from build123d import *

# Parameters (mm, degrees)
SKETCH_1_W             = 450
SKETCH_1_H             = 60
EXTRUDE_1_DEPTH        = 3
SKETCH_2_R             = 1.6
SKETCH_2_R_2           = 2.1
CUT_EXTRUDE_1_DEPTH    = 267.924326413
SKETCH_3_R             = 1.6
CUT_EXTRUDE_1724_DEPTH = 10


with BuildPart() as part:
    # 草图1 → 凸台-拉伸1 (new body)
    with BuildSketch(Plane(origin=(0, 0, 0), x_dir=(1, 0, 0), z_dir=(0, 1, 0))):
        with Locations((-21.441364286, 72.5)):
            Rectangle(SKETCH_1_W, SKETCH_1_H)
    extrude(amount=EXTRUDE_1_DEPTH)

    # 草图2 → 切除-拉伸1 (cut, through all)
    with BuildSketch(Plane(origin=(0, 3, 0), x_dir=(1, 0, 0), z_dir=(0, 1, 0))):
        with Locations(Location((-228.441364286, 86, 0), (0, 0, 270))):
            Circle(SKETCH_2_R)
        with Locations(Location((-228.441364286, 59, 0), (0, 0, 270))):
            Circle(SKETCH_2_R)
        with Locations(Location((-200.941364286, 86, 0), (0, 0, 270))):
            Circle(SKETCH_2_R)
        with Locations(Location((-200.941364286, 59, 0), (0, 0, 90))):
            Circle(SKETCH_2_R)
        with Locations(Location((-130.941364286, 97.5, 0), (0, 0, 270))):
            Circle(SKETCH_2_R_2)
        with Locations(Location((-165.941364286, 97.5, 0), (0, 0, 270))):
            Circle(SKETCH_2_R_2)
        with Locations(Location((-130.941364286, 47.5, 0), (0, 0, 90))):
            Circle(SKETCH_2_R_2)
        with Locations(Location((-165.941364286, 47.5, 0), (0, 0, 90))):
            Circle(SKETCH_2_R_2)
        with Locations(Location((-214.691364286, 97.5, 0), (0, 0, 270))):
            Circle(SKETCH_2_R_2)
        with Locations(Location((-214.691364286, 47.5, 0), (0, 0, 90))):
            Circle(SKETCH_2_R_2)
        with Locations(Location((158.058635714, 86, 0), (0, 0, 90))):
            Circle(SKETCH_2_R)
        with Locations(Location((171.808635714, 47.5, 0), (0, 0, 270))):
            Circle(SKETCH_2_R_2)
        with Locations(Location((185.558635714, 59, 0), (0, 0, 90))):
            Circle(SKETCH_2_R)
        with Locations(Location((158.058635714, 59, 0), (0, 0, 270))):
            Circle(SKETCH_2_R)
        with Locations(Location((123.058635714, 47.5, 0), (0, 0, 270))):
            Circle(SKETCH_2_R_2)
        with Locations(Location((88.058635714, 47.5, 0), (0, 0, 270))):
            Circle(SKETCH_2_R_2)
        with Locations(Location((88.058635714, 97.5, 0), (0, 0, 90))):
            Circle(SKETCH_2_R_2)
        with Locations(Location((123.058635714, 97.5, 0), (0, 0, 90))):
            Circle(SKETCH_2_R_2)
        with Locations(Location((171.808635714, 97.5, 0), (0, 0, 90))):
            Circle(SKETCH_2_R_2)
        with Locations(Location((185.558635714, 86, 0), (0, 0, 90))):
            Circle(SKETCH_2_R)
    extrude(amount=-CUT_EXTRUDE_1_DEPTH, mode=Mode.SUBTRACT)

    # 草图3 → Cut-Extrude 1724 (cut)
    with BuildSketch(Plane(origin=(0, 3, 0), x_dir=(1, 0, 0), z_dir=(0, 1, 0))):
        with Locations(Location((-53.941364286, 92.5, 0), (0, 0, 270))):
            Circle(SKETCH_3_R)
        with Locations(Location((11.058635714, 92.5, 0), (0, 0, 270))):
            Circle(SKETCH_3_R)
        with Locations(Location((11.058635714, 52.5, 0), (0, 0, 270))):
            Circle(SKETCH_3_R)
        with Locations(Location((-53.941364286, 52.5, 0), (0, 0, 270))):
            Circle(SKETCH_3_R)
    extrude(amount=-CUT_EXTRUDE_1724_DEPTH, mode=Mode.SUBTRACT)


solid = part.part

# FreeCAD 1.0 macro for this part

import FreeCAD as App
import Part
import Sketcher


def add_polygon(sketch, points):
    """Adds a closed chain of lines whose ends are joined by coincident constraints."""
    first, n = sketch.GeometryCount, len(points)
    for a, b in zip(points, points[1:] + points[:1]):
        sketch.addGeometry(Part.LineSegment(App.Vector(*a, 0), App.Vector(*b, 0)), False)
    for i in range(n):
        sketch.addConstraint(Sketcher.Constraint("Coincident", first + i, 2, first + (i + 1) % n, 1))

doc = App.newDocument("Part")
body = doc.addObject("PartDesign::Body", "Body")

# Sketch on XZ plane
sketch1 = body.newObject("Sketcher::SketchObject", "Sketch")
sketch1.AttachmentSupport = (doc.getObject("XZ_Plane"), [""])
sketch1.MapMode = "FlatFace"
add_polygon(sketch1, [(-246, -102), (-246, -42), (204, -42), (204, -102)])  # lines 0-3
sketch1.addConstraint([
    Sketcher.Constraint("Vertical", 0),
    Sketcher.Constraint("Horizontal", 1),
    Sketcher.Constraint("Vertical", 2),
    Sketcher.Constraint("Horizontal", 3),
    Sketcher.Constraint("DistanceX", 1, 1, 1, 2, 450.0),
    Sketcher.Constraint("DistanceY", 0, 1, 0, 2, 60.0),
    Sketcher.Constraint("DistanceY", 0, 2, -1, 1, 42.5),
    Sketcher.Constraint("DistanceX", 0, 2, -1, 1, 246.441364),
])
pad1 = body.newObject("PartDesign::Pad", "Pad")
pad1.Profile = sketch1
pad1.Length = 3
pad1.Reversed = True

# Sketch on XZ plane
sketch2 = body.newObject("Sketcher::SketchObject", "Sketch001")
sketch2.AttachmentSupport = (doc.getObject("XZ_Plane"), [""])
sketch2.MapMode = "FlatFace"
sketch2.AttachmentOffset = App.Placement(App.Vector(0, 0, -3), App.Rotation())
sketch2.addGeometry([
    Part.Circle(App.Vector(-228.4, -86, 0), App.Vector(0, 0, 1), 1.6),  # 0
    Part.Circle(App.Vector(-228.4, -59, 0), App.Vector(0, 0, 1), 1.6),  # 1
    Part.Circle(App.Vector(-200.9, -86, 0), App.Vector(0, 0, 1), 1.6),  # 2
    Part.Circle(App.Vector(-200.9, -59, 0), App.Vector(0, 0, 1), 1.6),  # 3
    Part.Circle(App.Vector(-130.9, -97.5, 0), App.Vector(0, 0, 1), 2.1),  # 4
    Part.Circle(App.Vector(-165.9, -97.5, 0), App.Vector(0, 0, 1), 2.1),  # 5
    Part.Circle(App.Vector(-130.9, -47.5, 0), App.Vector(0, 0, 1), 2.1),  # 6
    Part.Circle(App.Vector(-165.9, -47.5, 0), App.Vector(0, 0, 1), 2.1),  # 7
    Part.Circle(App.Vector(-214.7, -97.5, 0), App.Vector(0, 0, 1), 2.1),  # 8
    Part.Circle(App.Vector(-214.7, -47.5, 0), App.Vector(0, 0, 1), 2.1),  # 9
    Part.Circle(App.Vector(158.1, -86, 0), App.Vector(0, 0, 1), 1.6),  # 10
    Part.Circle(App.Vector(171.8, -47.5, 0), App.Vector(0, 0, 1), 2.1),  # 11
    Part.Circle(App.Vector(185.6, -59, 0), App.Vector(0, 0, 1), 1.6),  # 12
    Part.Circle(App.Vector(158.1, -59, 0), App.Vector(0, 0, 1), 1.6),  # 13
    Part.Circle(App.Vector(123.1, -47.5, 0), App.Vector(0, 0, 1), 2.1),  # 14
    Part.Circle(App.Vector(88.1, -47.5, 0), App.Vector(0, 0, 1), 2.1),  # 15
    Part.Circle(App.Vector(88.1, -97.5, 0), App.Vector(0, 0, 1), 2.1),  # 16
    Part.Circle(App.Vector(123.1, -97.5, 0), App.Vector(0, 0, 1), 2.1),  # 17
    Part.Circle(App.Vector(171.8, -97.5, 0), App.Vector(0, 0, 1), 2.1),  # 18
    Part.Circle(App.Vector(185.6, -86, 0), App.Vector(0, 0, 1), 1.6),  # 19
], False)
sketch2.addConstraint([
    Sketcher.Constraint("Equal", 0, 1),
    Sketcher.Constraint("Equal", 1, 2),
    Sketcher.Constraint("Equal", 2, 3),
    Sketcher.Constraint("Equal", 4, 5),
    Sketcher.Constraint("Equal", 5, 6),
    Sketcher.Constraint("Equal", 6, 7),
    Sketcher.Constraint("Equal", 7, 8),
    Sketcher.Constraint("Equal", 8, 9),
    Sketcher.Constraint("Equal", 3, 10),
    Sketcher.Constraint("Equal", 9, 11),
    Sketcher.Constraint("Equal", 10, 12),
    Sketcher.Constraint("Equal", 12, 13),
    Sketcher.Constraint("Equal", 11, 14),
    Sketcher.Constraint("Equal", 14, 15),
    Sketcher.Constraint("Equal", 15, 16),
    Sketcher.Constraint("Equal", 16, 17),
    Sketcher.Constraint("Equal", 17, 18),
    Sketcher.Constraint("Equal", 13, 19),
    Sketcher.Constraint("Horizontal", 0, 3, 2, 3),
    Sketcher.Constraint("Horizontal", 1, 3, 3, 3),
    Sketcher.Constraint("Horizontal", 4, 3, 5, 3),
    Sketcher.Constraint("Horizontal", 6, 3, 7, 3),
    Sketcher.Constraint("Horizontal", 5, 3, 8, 3),
    Sketcher.Constraint("Horizontal", 7, 3, 9, 3),
    Sketcher.Constraint("Horizontal", 2, 3, 10, 3),
    Sketcher.Constraint("Horizontal", 9, 3, 11, 3),
    Sketcher.Constraint("Horizontal", 3, 3, 12, 3),
    Sketcher.Constraint("Horizontal", 12, 3, 13, 3),
    Sketcher.Constraint("Horizontal", 11, 3, 14, 3),
    Sketcher.Constraint("Horizontal", 14, 3, 15, 3),
    Sketcher.Constraint("Horizontal", 8, 3, 16, 3),
    Sketcher.Constraint("Horizontal", 16, 3, 17, 3),
    Sketcher.Constraint("Horizontal", 17, 3, 18, 3),
    Sketcher.Constraint("Horizontal", 10, 3, 19, 3),
    Sketcher.Constraint("Vertical", 0, 3, 1, 3),
    Sketcher.Constraint("Vertical", 2, 3, 3, 3),
    Sketcher.Constraint("Vertical", 4, 3, 6, 3),
    Sketcher.Constraint("Vertical", 5, 3, 7, 3),
    Sketcher.Constraint("Vertical", 8, 3, 9, 3),
    Sketcher.Constraint("Vertical", 10, 3, 13, 3),
    Sketcher.Constraint("Vertical", 15, 3, 16, 3),
    Sketcher.Constraint("Vertical", 14, 3, 17, 3),
    Sketcher.Constraint("Vertical", 11, 3, 18, 3),
    Sketcher.Constraint("Vertical", 12, 3, 19, 3),
    Sketcher.Constraint("Diameter", 0, 3.2),
    Sketcher.Constraint("Diameter", 4, 4.2),
    Sketcher.Constraint("DistanceY", 0, 3, -1, 1, 86.0),
    Sketcher.Constraint("DistanceY", 1, 3, -1, 1, 59.0),
    Sketcher.Constraint("DistanceX", 2, 3, 4, 3, 70.0),
    Sketcher.Constraint("DistanceX", 5, 3, 4, 3, 35.0),
    Sketcher.Constraint("DistanceY", 4, 3, 6, 3, 50.0),
    Sketcher.Constraint("DistanceX", 4, 3, 10, 3, 289.0),
    Sketcher.Constraint("DistanceX", 14, 3, 13, 3, 35.0),
    Sketcher.Constraint("DistanceX", 15, 3, 14, 3, 35.0),
    Sketcher.Constraint("DistanceY", 4, 3, -1, 1, 97.5),
    Sketcher.Constraint("DistanceX", 0, 3, 2, 3, 27.5),
    Sketcher.Constraint("DistanceX", 10, 3, 12, 3, 27.5),
    Sketcher.Constraint("DistanceX", 0, 3, 8, 3, 13.75),
    Sketcher.Constraint("DistanceX", 10, 3, 11, 3, 13.75),
    Sketcher.Constraint("DistanceX", 0, 3, -1, 1, 228.441364),
])
pocket1 = body.newObject("PartDesign::Pocket", "Pocket")
pocket1.Profile = sketch2
pocket1.Type = "ThroughAll"
pocket1.Reversed = True

# Sketch on XZ plane
sketch3 = body.newObject("Sketcher::SketchObject", "Sketch002")
sketch3.AttachmentSupport = (doc.getObject("XZ_Plane"), [""])
sketch3.MapMode = "FlatFace"
sketch3.AttachmentOffset = App.Placement(App.Vector(0, 0, -3), App.Rotation())
sketch3.addGeometry([
    Part.Circle(App.Vector(-53.9, -92.5, 0), App.Vector(0, 0, 1), 1.6),
    Part.Circle(App.Vector(11.1, -92.5, 0), App.Vector(0, 0, 1), 1.6),
    Part.Circle(App.Vector(11.1, -52.5, 0), App.Vector(0, 0, 1), 1.6),
    Part.Circle(App.Vector(-53.9, -52.5, 0), App.Vector(0, 0, 1), 1.6),
], False)
sketch3.addConstraint([
    Sketcher.Constraint("Equal", 0, 1),
    Sketcher.Constraint("Equal", 1, 2),
    Sketcher.Constraint("Equal", 2, 3),
    Sketcher.Constraint("Horizontal", 0, 3, 1, 3),
    Sketcher.Constraint("Horizontal", 2, 3, 3, 3),
    Sketcher.Constraint("Vertical", 1, 3, 2, 3),
    Sketcher.Constraint("Vertical", 0, 3, 3, 3),
    Sketcher.Constraint("Diameter", 0, 3.2),
    Sketcher.Constraint("DistanceX", 0, 3, 1, 3, 65.0),
    Sketcher.Constraint("DistanceY", 1, 3, 2, 3, 40.0),
    Sketcher.Constraint("DistanceY", 0, 3, -1, 1, 92.5),
    Sketcher.Constraint("DistanceX", 0, 3, -1, 1, 53.941364),
])
pocket2 = body.newObject("PartDesign::Pocket", "Pocket001")
pocket2.Profile = sketch3
pocket2.Length = 10
pocket2.Reversed = True

doc.recompute()
